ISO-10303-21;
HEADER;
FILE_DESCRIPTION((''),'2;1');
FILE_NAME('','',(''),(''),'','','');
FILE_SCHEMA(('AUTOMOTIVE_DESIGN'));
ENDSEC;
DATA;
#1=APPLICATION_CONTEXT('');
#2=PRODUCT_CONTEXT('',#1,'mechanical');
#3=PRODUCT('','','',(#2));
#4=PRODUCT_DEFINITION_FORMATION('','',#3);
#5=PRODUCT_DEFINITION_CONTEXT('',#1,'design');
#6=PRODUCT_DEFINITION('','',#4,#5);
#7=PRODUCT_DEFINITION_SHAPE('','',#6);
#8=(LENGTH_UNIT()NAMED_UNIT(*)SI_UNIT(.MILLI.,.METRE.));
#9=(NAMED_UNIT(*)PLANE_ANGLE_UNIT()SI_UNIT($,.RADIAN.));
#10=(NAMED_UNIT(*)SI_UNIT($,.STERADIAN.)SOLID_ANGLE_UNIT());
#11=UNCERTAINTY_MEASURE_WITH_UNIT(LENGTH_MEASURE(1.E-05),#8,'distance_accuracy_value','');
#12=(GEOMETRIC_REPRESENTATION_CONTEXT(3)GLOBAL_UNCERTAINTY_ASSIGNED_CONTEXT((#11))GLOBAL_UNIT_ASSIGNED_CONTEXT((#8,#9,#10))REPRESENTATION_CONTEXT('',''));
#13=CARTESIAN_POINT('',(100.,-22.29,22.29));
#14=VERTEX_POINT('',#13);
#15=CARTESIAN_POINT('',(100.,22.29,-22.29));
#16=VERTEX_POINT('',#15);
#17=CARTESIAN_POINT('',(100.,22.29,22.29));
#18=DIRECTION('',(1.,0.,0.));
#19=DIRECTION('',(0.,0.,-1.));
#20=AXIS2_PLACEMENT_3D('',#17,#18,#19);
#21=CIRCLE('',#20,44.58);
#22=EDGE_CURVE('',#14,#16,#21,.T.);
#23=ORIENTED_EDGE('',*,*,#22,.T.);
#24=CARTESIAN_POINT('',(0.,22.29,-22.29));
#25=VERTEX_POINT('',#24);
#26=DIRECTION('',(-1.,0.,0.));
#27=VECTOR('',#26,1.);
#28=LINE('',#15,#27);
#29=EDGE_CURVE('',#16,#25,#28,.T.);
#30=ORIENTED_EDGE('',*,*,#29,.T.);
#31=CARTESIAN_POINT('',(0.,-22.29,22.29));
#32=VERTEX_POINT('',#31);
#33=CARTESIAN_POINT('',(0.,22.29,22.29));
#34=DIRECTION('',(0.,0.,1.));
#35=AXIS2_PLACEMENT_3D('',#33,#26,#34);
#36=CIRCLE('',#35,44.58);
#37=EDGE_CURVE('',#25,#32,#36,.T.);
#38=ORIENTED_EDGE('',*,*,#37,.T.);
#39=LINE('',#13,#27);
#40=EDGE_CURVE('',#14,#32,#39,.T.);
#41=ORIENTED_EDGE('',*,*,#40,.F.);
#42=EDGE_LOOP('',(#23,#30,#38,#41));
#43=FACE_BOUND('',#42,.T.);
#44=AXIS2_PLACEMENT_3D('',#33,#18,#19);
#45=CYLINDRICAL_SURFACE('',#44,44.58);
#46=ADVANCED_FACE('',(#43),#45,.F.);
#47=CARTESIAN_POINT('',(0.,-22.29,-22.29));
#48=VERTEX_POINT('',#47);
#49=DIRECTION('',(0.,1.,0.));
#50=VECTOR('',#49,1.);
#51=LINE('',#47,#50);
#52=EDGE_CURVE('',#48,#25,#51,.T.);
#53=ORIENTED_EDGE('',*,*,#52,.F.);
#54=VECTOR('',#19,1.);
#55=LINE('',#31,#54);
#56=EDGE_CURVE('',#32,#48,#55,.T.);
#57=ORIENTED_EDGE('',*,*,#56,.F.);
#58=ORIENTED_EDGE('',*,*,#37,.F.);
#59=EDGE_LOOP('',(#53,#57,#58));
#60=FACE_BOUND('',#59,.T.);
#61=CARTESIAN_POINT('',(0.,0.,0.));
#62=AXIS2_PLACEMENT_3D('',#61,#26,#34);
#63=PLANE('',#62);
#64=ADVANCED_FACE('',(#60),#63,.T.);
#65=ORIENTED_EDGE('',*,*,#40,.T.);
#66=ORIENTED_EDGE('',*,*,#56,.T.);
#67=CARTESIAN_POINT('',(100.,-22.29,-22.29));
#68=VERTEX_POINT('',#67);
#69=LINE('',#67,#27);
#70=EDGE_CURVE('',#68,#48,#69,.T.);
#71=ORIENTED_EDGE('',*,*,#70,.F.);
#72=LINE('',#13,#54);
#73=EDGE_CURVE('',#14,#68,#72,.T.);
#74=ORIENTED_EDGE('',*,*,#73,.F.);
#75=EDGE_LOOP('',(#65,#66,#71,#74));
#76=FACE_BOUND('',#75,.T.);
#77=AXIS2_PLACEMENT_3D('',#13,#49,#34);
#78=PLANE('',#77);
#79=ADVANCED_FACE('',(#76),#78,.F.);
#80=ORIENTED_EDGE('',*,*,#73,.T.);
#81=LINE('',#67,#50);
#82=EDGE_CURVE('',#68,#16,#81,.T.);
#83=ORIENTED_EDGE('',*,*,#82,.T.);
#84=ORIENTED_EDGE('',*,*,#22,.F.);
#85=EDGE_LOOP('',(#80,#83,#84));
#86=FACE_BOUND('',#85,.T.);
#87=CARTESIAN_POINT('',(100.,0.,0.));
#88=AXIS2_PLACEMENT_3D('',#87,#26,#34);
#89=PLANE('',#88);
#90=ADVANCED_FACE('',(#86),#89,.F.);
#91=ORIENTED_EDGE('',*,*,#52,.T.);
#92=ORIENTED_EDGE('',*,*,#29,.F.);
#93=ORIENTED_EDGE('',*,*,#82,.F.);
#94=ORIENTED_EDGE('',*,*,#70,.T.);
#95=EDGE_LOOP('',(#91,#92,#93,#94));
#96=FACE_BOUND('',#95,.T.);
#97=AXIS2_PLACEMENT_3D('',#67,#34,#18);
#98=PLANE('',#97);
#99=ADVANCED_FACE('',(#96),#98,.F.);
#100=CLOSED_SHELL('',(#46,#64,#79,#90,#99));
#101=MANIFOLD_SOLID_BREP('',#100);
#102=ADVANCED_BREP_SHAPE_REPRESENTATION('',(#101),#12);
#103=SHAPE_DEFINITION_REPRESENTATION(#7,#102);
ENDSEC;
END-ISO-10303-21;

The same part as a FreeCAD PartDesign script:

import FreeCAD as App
import Part
import Sketcher

V = App.Vector

doc = App.newDocument("Part")
body = doc.addObject("PartDesign::Body", "Body")

sketch1 = body.newObject("Sketcher::SketchObject", "Sketch")
sketch1.AttachmentSupport = (doc.getObject("YZ_Plane"), [""])
sketch1.MapMode = "FlatFace"
sketch1.addGeometry(Part.LineSegment(V(22.29, 22.29, 0), V(-22.29, 22.29, 0)), False)
sketch1.addGeometry(Part.LineSegment(V(-22.29, 22.29, 0), V(-22.29, -22.29, 0)), False)
sketch1.addGeometry(Part.LineSegment(V(-22.29, -22.29, 0), V(22.29, -22.29, 0)), False)
sketch1.addGeometry(Part.LineSegment(V(22.29, -22.29, 0), V(22.29, 22.29, 0)), False)
sketch1.addConstraint(Sketcher.Constraint("Coincident", 0, 2, 1, 1))
sketch1.addConstraint(Sketcher.Constraint("Coincident", 1, 2, 2, 1))
sketch1.addConstraint(Sketcher.Constraint("Coincident", 2, 2, 3, 1))
sketch1.addConstraint(Sketcher.Constraint("Coincident", 3, 2, 0, 1))
sketch1.addConstraint(Sketcher.Constraint("Horizontal", 0))
sketch1.addConstraint(Sketcher.Constraint("Vertical", 1))
sketch1.addConstraint(Sketcher.Constraint("Horizontal", 2))
sketch1.addConstraint(Sketcher.Constraint("Vertical", 3))
sketch1.addConstraint(Sketcher.Constraint("Symmetric", 0, 2, 2, 2, -1, 1))
sketch1.addConstraint(Sketcher.Constraint("Equal", 2, 1))
sketch1.addConstraint(Sketcher.Constraint("DistanceX", 0, 2, 0, 1, 44.58))
pad1 = body.newObject("PartDesign::Pad", "Pad")
pad1.Profile = sketch1
pad1.Length = 100

sketch2 = body.newObject("Sketcher::SketchObject", "Sketch001")
sketch2.AttachmentSupport = (doc.getObject("YZ_Plane"), [""])
sketch2.MapMode = "FlatFace"
sketch2.AttachmentOffset = App.Placement(V(0, 0, 100), App.Rotation())
sketch2.addGeometry(Part.Circle(V(22.29, 22.29, 0), V(0, 0, 1), 44.58), False)
sketch2.addConstraint(Sketcher.Constraint("Diameter", 0, 89.16))
sketch2.addConstraint(Sketcher.Constraint("DistanceX", -1, 1, 0, 3, 22.29))
sketch2.addConstraint(Sketcher.Constraint("DistanceY", -1, 1, 0, 3, 22.29))
pocket1 = body.newObject("PartDesign::Pocket", "Pocket")
pocket1.Profile = sketch2
pocket1.Length = 100

doc.recompute()
